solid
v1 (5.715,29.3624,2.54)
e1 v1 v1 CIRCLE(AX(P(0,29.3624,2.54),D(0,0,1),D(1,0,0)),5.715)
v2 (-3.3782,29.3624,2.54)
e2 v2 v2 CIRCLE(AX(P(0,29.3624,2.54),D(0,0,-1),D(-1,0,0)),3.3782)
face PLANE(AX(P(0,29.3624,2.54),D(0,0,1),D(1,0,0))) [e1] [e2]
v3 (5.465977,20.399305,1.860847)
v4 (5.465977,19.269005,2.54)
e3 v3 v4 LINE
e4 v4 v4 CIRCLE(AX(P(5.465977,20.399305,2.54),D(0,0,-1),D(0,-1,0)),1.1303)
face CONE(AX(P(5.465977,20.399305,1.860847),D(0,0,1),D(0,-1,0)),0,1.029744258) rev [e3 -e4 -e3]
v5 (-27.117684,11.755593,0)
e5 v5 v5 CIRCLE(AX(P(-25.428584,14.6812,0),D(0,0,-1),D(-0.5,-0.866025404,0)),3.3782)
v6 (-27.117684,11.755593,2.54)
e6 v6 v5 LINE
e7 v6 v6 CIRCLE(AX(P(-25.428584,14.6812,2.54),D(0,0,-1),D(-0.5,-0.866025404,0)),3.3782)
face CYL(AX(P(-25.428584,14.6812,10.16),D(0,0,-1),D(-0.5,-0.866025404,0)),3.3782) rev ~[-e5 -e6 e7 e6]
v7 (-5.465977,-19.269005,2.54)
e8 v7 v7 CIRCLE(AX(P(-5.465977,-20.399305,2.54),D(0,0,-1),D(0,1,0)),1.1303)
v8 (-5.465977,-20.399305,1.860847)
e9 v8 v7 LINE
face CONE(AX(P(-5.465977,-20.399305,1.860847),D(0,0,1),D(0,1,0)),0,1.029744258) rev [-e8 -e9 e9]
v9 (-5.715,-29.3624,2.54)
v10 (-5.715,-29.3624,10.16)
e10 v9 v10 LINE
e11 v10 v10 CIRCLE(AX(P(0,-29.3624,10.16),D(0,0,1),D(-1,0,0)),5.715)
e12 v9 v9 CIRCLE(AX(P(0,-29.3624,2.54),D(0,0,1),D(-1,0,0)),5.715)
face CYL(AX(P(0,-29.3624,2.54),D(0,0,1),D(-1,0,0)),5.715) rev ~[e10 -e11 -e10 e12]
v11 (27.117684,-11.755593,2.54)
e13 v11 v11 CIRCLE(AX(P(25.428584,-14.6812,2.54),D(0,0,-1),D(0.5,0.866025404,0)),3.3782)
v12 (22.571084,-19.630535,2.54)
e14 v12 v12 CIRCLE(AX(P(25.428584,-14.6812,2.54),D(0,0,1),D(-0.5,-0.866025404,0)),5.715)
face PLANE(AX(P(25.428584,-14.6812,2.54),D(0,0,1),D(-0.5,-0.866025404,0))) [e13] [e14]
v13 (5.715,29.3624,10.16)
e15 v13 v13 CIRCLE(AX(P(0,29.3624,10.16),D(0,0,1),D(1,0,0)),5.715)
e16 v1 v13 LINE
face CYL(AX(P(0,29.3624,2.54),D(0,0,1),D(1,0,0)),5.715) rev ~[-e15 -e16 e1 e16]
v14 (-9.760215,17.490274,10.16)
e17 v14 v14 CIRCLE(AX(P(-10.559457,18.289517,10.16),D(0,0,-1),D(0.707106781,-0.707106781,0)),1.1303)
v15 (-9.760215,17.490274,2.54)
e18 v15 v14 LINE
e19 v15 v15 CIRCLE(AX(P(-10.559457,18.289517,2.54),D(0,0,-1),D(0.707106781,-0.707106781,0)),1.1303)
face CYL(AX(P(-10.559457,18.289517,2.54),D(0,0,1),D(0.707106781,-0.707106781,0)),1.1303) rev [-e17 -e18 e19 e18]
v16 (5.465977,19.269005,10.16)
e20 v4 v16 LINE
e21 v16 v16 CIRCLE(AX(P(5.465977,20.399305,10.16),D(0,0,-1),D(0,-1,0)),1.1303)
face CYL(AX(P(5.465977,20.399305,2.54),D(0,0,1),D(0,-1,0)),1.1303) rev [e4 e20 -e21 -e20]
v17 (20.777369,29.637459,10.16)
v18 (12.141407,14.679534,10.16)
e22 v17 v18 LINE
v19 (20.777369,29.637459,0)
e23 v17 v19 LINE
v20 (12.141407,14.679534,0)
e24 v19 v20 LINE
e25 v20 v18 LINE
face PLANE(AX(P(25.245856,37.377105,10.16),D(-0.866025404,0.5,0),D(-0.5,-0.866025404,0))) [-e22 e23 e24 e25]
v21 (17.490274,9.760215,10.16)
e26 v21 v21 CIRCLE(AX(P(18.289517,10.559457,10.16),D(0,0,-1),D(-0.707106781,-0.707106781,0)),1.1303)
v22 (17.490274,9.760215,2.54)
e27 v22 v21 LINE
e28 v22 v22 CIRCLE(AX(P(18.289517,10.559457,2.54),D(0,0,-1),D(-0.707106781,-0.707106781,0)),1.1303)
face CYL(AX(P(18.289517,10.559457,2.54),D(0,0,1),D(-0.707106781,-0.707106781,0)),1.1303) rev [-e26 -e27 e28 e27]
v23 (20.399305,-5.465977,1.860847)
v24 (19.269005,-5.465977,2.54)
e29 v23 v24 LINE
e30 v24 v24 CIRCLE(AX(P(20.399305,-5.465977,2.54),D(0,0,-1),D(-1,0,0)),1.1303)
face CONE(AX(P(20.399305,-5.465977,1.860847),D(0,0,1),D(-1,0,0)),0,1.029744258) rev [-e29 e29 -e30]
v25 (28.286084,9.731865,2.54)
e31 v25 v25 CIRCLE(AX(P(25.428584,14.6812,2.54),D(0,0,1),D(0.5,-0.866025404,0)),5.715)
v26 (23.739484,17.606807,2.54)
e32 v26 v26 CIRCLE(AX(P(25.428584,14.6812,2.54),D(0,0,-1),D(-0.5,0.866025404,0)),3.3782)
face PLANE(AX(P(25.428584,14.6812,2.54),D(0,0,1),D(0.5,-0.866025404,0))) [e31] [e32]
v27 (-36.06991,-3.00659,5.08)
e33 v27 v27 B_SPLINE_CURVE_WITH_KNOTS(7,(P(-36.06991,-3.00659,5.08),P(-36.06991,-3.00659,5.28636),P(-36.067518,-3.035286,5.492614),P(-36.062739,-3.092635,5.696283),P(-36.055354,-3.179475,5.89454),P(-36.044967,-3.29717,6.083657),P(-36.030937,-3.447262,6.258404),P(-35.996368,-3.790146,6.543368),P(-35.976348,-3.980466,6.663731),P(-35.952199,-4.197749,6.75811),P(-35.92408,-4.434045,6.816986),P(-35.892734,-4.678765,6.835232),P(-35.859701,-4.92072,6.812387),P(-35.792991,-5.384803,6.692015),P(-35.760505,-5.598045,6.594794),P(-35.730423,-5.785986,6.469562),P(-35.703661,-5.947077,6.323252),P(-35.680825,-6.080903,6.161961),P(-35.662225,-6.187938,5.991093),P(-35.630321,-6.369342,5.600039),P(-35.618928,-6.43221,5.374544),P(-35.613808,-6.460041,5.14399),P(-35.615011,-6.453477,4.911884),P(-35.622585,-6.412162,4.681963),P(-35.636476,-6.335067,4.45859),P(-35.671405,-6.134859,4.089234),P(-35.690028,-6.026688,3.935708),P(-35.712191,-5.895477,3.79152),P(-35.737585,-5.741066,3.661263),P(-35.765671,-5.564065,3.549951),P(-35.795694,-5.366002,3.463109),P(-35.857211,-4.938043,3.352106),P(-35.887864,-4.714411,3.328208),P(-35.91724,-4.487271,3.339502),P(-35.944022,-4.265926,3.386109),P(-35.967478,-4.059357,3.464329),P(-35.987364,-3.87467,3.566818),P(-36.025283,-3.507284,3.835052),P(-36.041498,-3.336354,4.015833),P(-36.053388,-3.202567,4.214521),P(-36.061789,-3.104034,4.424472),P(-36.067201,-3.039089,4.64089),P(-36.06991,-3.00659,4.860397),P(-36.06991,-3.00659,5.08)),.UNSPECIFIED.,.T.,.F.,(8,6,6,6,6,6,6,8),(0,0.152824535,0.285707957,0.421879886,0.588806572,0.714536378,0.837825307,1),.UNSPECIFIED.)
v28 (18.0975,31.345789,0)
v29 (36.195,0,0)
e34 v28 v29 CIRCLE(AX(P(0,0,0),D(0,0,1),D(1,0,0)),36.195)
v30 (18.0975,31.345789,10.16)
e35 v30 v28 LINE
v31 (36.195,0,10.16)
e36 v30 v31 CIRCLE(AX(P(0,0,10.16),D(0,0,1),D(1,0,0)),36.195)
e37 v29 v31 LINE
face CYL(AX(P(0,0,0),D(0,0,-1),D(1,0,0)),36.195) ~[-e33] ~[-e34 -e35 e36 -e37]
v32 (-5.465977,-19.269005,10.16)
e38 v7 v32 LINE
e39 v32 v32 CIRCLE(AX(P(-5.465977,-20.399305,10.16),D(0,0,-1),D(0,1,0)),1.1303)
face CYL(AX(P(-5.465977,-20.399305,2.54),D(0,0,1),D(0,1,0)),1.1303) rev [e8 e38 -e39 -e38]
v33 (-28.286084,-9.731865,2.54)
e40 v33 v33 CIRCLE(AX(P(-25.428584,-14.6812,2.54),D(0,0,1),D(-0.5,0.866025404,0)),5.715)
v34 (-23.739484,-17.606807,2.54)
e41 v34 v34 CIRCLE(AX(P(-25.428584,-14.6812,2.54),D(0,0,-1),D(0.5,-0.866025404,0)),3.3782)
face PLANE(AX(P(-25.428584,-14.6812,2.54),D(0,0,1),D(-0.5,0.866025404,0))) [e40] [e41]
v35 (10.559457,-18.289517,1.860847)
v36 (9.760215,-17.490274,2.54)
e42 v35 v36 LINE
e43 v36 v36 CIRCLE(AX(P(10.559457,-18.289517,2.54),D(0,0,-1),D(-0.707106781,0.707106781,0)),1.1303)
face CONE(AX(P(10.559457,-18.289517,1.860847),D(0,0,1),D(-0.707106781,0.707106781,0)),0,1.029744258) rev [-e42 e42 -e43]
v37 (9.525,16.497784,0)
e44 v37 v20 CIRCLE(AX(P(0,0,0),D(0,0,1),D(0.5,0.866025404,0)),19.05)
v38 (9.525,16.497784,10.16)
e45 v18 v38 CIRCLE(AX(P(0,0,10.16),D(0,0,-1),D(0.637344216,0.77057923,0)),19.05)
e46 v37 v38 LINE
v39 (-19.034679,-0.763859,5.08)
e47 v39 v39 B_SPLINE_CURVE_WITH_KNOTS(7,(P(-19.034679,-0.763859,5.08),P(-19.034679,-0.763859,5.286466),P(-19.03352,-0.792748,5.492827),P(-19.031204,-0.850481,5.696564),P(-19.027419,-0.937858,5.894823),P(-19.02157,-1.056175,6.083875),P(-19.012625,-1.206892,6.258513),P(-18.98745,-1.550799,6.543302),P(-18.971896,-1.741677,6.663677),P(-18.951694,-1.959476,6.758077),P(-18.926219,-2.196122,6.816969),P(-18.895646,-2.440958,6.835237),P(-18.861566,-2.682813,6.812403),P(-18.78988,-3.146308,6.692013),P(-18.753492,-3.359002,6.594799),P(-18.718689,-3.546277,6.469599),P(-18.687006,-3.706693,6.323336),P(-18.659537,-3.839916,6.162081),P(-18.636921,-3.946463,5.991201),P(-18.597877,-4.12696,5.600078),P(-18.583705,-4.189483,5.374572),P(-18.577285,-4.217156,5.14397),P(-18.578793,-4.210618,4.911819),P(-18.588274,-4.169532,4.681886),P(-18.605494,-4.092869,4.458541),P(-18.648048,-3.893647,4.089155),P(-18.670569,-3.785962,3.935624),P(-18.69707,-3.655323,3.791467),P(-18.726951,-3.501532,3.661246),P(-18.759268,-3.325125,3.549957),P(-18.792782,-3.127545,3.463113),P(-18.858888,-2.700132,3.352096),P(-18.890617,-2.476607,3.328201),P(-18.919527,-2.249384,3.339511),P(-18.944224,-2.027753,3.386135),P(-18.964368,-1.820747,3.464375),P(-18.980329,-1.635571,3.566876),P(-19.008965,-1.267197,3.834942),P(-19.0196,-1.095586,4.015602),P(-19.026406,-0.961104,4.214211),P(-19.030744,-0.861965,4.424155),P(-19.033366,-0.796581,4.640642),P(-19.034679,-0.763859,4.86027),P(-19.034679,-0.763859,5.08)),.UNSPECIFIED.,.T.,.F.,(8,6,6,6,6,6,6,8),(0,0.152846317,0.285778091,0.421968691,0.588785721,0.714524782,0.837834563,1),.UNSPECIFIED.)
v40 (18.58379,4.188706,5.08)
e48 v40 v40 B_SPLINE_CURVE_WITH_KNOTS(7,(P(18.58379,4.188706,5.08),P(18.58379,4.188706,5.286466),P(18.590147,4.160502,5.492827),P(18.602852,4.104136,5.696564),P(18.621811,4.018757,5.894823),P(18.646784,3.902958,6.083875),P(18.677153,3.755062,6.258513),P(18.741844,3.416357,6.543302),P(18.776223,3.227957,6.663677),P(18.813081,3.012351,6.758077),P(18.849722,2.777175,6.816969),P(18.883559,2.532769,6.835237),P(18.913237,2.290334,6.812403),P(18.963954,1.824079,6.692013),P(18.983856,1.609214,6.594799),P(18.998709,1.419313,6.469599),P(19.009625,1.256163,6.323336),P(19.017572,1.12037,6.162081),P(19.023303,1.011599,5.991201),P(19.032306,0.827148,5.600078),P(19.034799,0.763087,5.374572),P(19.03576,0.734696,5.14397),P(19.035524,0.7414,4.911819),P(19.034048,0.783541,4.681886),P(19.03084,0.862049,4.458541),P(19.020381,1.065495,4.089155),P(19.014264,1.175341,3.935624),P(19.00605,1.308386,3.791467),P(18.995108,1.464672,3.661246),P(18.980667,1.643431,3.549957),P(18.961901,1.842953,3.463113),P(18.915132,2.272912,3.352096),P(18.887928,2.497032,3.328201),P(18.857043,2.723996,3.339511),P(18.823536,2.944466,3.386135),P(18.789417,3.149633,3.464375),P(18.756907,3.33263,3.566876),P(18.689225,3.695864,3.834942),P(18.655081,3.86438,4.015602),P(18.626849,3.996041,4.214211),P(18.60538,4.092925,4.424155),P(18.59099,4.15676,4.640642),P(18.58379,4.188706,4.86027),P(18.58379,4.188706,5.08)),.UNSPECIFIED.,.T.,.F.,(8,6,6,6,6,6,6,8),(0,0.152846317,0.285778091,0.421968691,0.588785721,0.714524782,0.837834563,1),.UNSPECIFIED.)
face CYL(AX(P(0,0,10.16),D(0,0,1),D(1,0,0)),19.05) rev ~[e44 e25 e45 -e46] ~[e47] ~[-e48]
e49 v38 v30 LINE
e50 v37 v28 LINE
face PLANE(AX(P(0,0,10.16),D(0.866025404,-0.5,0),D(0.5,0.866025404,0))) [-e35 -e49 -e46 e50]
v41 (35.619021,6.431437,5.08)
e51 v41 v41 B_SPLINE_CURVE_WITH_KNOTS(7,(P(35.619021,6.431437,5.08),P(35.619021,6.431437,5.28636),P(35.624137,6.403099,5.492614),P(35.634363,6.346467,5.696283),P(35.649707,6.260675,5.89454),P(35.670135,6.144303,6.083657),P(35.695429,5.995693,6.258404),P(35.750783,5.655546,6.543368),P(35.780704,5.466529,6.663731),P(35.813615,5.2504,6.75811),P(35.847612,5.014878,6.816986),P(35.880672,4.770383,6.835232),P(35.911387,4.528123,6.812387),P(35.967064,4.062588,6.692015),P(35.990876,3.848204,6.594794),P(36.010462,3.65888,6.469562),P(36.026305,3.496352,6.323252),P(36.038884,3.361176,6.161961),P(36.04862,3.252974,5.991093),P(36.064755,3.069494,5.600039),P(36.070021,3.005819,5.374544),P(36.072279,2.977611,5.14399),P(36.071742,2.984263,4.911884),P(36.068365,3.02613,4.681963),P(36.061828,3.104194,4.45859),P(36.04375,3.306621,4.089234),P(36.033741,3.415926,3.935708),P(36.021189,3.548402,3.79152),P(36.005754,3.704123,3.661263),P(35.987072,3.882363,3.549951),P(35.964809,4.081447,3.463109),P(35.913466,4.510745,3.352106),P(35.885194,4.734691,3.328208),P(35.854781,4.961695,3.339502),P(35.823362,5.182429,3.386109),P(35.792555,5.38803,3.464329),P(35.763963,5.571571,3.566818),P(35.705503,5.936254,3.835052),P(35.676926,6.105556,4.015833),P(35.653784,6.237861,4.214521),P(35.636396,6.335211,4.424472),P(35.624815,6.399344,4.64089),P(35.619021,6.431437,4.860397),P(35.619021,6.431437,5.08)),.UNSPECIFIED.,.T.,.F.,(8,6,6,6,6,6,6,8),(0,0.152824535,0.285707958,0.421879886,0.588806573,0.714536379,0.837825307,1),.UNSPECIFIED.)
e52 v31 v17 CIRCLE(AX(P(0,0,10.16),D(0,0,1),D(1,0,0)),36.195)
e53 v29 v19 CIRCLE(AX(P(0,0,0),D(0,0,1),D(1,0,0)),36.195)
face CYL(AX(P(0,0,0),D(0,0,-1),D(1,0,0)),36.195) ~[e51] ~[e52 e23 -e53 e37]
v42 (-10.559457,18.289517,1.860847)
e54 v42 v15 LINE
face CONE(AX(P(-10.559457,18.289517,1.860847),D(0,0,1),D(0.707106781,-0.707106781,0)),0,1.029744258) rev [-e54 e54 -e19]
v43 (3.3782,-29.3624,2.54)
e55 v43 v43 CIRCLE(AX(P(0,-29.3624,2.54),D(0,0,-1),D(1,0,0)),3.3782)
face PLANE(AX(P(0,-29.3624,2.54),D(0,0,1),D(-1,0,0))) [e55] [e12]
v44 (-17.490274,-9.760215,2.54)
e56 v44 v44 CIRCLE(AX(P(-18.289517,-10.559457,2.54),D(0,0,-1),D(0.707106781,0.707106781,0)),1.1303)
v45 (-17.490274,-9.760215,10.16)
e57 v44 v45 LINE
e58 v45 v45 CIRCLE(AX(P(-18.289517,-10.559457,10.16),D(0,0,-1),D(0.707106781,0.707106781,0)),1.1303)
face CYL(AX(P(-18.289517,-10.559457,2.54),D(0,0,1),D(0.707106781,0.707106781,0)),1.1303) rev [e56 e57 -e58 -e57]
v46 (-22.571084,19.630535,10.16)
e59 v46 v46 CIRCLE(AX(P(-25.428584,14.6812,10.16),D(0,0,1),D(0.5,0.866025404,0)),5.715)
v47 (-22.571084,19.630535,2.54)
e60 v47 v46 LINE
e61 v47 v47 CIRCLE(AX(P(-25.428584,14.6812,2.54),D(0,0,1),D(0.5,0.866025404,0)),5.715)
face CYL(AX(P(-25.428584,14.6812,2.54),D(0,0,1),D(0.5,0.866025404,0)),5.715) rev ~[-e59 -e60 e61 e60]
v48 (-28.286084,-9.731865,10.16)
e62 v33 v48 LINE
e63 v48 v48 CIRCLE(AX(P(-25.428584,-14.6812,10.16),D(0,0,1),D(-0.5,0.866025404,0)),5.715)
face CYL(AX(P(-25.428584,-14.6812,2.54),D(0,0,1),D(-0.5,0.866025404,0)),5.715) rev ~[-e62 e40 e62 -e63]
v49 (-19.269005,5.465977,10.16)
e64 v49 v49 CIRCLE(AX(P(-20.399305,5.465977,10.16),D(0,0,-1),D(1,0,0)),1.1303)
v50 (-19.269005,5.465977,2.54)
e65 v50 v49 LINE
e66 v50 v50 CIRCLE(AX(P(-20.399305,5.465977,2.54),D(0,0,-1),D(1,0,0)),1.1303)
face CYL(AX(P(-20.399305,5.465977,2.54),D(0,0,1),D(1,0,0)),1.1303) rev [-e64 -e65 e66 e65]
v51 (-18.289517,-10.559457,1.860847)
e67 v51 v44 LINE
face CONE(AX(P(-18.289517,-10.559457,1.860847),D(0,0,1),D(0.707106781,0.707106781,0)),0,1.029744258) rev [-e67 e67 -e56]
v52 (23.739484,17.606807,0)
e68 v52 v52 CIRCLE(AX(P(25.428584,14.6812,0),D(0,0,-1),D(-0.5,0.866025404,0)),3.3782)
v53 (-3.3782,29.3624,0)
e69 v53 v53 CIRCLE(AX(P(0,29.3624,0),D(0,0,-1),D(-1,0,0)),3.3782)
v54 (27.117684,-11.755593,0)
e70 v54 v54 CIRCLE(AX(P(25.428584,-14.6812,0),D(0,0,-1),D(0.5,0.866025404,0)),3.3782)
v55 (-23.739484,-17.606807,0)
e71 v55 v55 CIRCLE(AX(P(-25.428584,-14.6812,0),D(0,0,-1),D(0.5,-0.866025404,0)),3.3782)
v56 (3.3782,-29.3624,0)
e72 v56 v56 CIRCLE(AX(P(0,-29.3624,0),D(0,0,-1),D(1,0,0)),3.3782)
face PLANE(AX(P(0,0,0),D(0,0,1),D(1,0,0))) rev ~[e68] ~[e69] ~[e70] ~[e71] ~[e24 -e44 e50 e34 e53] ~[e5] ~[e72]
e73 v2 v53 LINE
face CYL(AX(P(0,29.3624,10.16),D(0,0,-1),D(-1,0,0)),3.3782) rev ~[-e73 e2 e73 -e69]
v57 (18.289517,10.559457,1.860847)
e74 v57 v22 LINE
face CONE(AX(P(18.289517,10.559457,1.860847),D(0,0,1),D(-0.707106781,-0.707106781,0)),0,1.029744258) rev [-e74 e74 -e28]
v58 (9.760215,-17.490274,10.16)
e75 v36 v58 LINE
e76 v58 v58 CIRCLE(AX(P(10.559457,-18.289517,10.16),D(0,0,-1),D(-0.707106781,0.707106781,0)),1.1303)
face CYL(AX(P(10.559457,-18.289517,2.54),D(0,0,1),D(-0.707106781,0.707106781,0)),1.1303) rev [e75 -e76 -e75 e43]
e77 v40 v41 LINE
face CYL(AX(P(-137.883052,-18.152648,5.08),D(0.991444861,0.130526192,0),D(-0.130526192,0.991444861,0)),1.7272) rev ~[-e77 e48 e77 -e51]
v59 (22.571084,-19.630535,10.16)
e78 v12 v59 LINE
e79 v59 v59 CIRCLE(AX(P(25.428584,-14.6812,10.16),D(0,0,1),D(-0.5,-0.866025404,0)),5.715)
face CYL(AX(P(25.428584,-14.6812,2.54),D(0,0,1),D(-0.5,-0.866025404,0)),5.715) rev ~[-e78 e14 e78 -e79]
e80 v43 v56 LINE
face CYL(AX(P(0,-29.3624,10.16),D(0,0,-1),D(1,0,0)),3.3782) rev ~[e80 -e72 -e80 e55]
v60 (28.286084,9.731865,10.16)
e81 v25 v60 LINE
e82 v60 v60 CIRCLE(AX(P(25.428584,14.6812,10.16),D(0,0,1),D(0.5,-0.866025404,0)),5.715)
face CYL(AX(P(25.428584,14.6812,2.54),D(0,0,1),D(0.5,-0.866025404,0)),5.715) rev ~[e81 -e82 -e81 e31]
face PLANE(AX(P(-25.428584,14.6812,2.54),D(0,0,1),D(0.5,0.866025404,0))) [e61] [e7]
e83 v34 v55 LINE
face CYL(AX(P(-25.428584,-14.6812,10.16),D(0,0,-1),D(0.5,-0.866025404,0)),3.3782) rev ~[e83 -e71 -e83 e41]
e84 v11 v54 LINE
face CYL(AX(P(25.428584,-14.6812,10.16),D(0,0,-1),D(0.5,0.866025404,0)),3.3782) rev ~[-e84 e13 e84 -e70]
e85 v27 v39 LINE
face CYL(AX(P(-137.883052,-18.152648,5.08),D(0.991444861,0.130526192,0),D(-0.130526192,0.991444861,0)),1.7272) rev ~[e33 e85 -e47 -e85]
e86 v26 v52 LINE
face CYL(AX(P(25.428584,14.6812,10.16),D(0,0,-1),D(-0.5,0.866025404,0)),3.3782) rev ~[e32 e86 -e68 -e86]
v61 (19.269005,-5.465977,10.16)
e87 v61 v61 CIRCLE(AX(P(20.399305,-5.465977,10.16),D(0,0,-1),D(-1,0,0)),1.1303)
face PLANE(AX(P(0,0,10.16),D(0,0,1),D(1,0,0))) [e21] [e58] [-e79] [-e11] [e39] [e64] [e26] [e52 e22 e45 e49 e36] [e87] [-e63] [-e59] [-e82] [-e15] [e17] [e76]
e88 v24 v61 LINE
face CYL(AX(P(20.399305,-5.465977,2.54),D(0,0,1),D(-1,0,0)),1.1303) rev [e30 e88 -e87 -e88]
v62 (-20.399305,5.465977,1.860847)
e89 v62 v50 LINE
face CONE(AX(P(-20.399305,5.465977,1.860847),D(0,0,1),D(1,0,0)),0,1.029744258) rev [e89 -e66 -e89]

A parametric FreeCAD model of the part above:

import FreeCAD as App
import Part
import Sketcher
from FreeCAD import Vector
Q = App.Units.Quantity

doc = App.newDocument("Part")
body = doc.addObject("PartDesign::Body", "Body")

sketch1 = body.newObject("Sketcher::SketchObject", "Sketch")
sketch1.AttachmentSupport = (doc.getObject("XY_Plane"), [""])
sketch1.MapMode = "FlatFace"
sketch1.addGeometry(Part.Circle(Vector(0, 0, 0), Vector(0, 0, 1), 36), False)
sketch1.addConstraint(Sketcher.Constraint("Coincident", 0, 3, -1, 1))
sketch1.addConstraint(Sketcher.Constraint("Diameter", 0, Q("2.85 in")))
pad1 = body.newObject("PartDesign::Pad", "Pad")
pad1.Profile = sketch1
pad1.Length = Q("0.4 in")

sketch2 = body.newObject("Sketcher::SketchObject", "Sketch001")
sketch2.AttachmentSupport = (doc.getObject("XY_Plane"), [""])
sketch2.MapMode = "FlatFace"
sketch2.AttachmentOffset = App.Placement(Vector(0, 0, 0.4 * 25.4), App.Rotation())
sketch2.addGeometry(Part.Circle(Vector(0, 0, 0), Vector(0, 0, 1), 19), False)
sketch2.addConstraint(Sketcher.Constraint("Coincident", 0, 3, -1, 1))
sketch2.addConstraint(Sketcher.Constraint("Diameter", 0, Q("1.5 in")))
pocket1 = body.newObject("PartDesign::Pocket", "Pocket")
pocket1.Profile = sketch2
pocket1.Type = "ThroughAll"

sketch3 = body.newObject("Sketcher::SketchObject", "Sketch002")
sketch3.AttachmentSupport = (doc.getObject("XY_Plane"), [""])
sketch3.MapMode = "FlatFace"
sketch3.AttachmentOffset = App.Placement(Vector(0, 0, 0.4 * 25.4), App.Rotation())
sketch3.addGeometry(Part.Circle(Vector(0, 29.4, 0), Vector(0, 0, 1), 3.4), False)
sketch3.addConstraint(Sketcher.Constraint("PointOnObject", 0, 3, -2))
sketch3.addConstraint(Sketcher.Constraint("Diameter", 0, Q("0.266 in")))
sketch3.addConstraint(Sketcher.Constraint("DistanceY", -1, 1, 0, 3, Q("1.156 in")))
doc.recompute()
hole = body.newObject("PartDesign::Hole", "Hole")
hole.Profile = sketch3
hole.ThreadType = "None"
hole.Diameter = Q("0.266 in")
hole.DepthType = "ThroughAll"
hole.HoleCutType = "Counterbore"
hole.HoleCutDiameter = Q("0.45 in")
hole.HoleCutDepth = Q("0.3 in")
doc.recompute()

polarpattern = body.newObject("PartDesign::PolarPattern", "PolarPattern")
polarpattern.Originals = [hole]
polarpattern.Axis = (doc.getObject("Z_Axis"), [""])
polarpattern.Angle = 360
polarpattern.Occurrences = 6
body.Tip = polarpattern

sketch4 = body.newObject("Sketcher::SketchObject", "Sketch003")
sketch4.AttachmentSupport = (doc.getObject("YZ_Plane"), [""])
sketch4.MapMode = "FlatFace"
sketch4.AttachmentOffset = App.Placement(Vector(0, 0, 5.465977), App.Rotation())
sketch4.addGeometry(Part.LineSegment(Vector(20.4, 1.9, 0), Vector(20.4, 10.2, 0)), False)
sketch4.addGeometry(Part.LineSegment(Vector(20.4, 10.2, 0), Vector(19.3, 10.2, 0)), False)
sketch4.addGeometry(Part.LineSegment(Vector(19.3, 10.2, 0), Vector(19.3, 2.5, 0)), False)
sketch4.addGeometry(Part.LineSegment(Vector(19.3, 2.5, 0), Vector(20.4, 1.9, 0)), False)
sketch4.addGeometry(Part.LineSegment(Vector(20.4, 10.2, 0), Vector(20.4, 1.9, 0)), True)
sketch4.addConstraint(Sketcher.Constraint("Coincident", 0, 2, 1, 1))
sketch4.addConstraint(Sketcher.Constraint("Coincident", 1, 2, 2, 1))
sketch4.addConstraint(Sketcher.Constraint("Coincident", 2, 2, 3, 1))
sketch4.addConstraint(Sketcher.Constraint("Coincident", 3, 2, 0, 1))
sketch4.addConstraint(Sketcher.Constraint("Vertical", 0))
sketch4.addConstraint(Sketcher.Constraint("Horizontal", 1))
sketch4.addConstraint(Sketcher.Constraint("Vertical", 2))
sketch4.addConstraint(Sketcher.Constraint("Vertical", 4))
sketch4.addConstraint(Sketcher.Constraint("Coincident", 4, 1, 0, 2))
sketch4.addConstraint(Sketcher.Constraint("Equal", 0, 4))
sketch4.addConstraint(Sketcher.Constraint("DistanceY", 2, 2, 2, 1, Q("0.3 in")))
sketch4.addConstraint(Sketcher.Constraint("Angle", 3, Q("-31 deg")))
sketch4.addConstraint(Sketcher.Constraint("DistanceY", -1, 1, 0, 2, Q("0.4 in")))
sketch4.addConstraint(Sketcher.Constraint("DistanceX", 1, 2, 1, 1, Q("0.0445 in")))
sketch4.addConstraint(Sketcher.Constraint("DistanceX", -1, 1, 0, 2, 20.399305))
groove = body.newObject("PartDesign::Groove", "Groove")
groove.Profile = sketch4
groove.ReferenceAxis = (sketch4, ["Axis0"])
groove.Angle = 360
doc.recompute()

polarpattern2 = body.newObject("PartDesign::PolarPattern", "PolarPattern001")
polarpattern2.Originals = [groove]
polarpattern2.Axis = (doc.getObject("Z_Axis"), [""])
polarpattern2.Angle = 360
polarpattern2.Occurrences = 8
body.Tip = polarpattern2

sketch5 = body.newObject("Sketcher::SketchObject", "Sketch004")
sketch5.AttachmentSupport = (doc.getObject("XY_Plane"), [""])
sketch5.MapMode = "FlatFace"
sketch5.AttachmentOffset = App.Placement(Vector(0, 0, 0.4 * 25.4), App.Rotation())
sketch5.addGeometry(Part.LineSegment(Vector(22.5, 39, 0), Vector(0, 0, 0)), False)
sketch5.addGeometry(Part.LineSegment(Vector(0, 0, 0), Vector(2.7, -1.6, 0)), False)
sketch5.addGeometry(Part.LineSegment(Vector(2.7, -1.6, 0), Vector(25.2, 37.4, 0)), False)
sketch5.addGeometry(Part.LineSegment(Vector(25.2, 37.4, 0), Vector(22.5, 39, 0)), False)
sketch5.addConstraint(Sketcher.Constraint("Coincident", 0, 2, 1, 1))
sketch5.addConstraint(Sketcher.Constraint("Coincident", 1, 2, 2, 1))
sketch5.addConstraint(Sketcher.Constraint("Coincident", 2, 2, 3, 1))
sketch5.addConstraint(Sketcher.Constraint("Coincident", 3, 2, 0, 1))
sketch5.addConstraint(Sketcher.Constraint("Coincident", 0, 2, -1, 1))
sketch5.addConstraint(Sketcher.Constraint("Perpendicular", 0, 1))
sketch5.addConstraint(Sketcher.Constraint("Perpendicular", 1, 2))
sketch5.addConstraint(Sketcher.Constraint("Perpendicular", 2, 3))
sketch5.addConstraint(Sketcher.Constraint("Angle", 0, Q("-120 deg")))
sketch5.addConstraint(Sketcher.Constraint("Distance", 1, Q("0.125 in")))
sketch5.addConstraint(Sketcher.Constraint("Distance", 0, 44.99245))
pocket2 = body.newObject("PartDesign::Pocket", "Pocket001")
pocket2.Profile = sketch5
pocket2.Type = "ThroughAll"

sketch6 = body.newObject("Sketcher::SketchObject", "Sketch005")
sketch6.Placement = App.Placement(Vector(-35.885347, -4.724396, 0), App.Rotation(Vector(0.130526192, -0.991444861, 0), Vector(0, 0, 0.999999999), Vector(-0.991444861, -0.130526192, 0), "ZXY"))
sketch6.addGeometry(Part.Circle(Vector(0, 5.1, 0), Vector(0, 0, 1), 1.7), False)
sketch6.addConstraint(Sketcher.Constraint("PointOnObject", 0, 3, -2))
sketch6.addConstraint(Sketcher.Constraint("Diameter", 0, Q("0.136 in")))
sketch6.addConstraint(Sketcher.Constraint("DistanceY", -1, 1, 0, 3, Q("0.2 in")))
doc.recompute()
hole2 = body.newObject("PartDesign::Hole", "Hole001")
hole2.Profile = sketch6
hole2.ThreadType = "None"
hole2.Diameter = Q("0.136 in")
hole2.DepthType = "ThroughAll"

doc.recompute()
